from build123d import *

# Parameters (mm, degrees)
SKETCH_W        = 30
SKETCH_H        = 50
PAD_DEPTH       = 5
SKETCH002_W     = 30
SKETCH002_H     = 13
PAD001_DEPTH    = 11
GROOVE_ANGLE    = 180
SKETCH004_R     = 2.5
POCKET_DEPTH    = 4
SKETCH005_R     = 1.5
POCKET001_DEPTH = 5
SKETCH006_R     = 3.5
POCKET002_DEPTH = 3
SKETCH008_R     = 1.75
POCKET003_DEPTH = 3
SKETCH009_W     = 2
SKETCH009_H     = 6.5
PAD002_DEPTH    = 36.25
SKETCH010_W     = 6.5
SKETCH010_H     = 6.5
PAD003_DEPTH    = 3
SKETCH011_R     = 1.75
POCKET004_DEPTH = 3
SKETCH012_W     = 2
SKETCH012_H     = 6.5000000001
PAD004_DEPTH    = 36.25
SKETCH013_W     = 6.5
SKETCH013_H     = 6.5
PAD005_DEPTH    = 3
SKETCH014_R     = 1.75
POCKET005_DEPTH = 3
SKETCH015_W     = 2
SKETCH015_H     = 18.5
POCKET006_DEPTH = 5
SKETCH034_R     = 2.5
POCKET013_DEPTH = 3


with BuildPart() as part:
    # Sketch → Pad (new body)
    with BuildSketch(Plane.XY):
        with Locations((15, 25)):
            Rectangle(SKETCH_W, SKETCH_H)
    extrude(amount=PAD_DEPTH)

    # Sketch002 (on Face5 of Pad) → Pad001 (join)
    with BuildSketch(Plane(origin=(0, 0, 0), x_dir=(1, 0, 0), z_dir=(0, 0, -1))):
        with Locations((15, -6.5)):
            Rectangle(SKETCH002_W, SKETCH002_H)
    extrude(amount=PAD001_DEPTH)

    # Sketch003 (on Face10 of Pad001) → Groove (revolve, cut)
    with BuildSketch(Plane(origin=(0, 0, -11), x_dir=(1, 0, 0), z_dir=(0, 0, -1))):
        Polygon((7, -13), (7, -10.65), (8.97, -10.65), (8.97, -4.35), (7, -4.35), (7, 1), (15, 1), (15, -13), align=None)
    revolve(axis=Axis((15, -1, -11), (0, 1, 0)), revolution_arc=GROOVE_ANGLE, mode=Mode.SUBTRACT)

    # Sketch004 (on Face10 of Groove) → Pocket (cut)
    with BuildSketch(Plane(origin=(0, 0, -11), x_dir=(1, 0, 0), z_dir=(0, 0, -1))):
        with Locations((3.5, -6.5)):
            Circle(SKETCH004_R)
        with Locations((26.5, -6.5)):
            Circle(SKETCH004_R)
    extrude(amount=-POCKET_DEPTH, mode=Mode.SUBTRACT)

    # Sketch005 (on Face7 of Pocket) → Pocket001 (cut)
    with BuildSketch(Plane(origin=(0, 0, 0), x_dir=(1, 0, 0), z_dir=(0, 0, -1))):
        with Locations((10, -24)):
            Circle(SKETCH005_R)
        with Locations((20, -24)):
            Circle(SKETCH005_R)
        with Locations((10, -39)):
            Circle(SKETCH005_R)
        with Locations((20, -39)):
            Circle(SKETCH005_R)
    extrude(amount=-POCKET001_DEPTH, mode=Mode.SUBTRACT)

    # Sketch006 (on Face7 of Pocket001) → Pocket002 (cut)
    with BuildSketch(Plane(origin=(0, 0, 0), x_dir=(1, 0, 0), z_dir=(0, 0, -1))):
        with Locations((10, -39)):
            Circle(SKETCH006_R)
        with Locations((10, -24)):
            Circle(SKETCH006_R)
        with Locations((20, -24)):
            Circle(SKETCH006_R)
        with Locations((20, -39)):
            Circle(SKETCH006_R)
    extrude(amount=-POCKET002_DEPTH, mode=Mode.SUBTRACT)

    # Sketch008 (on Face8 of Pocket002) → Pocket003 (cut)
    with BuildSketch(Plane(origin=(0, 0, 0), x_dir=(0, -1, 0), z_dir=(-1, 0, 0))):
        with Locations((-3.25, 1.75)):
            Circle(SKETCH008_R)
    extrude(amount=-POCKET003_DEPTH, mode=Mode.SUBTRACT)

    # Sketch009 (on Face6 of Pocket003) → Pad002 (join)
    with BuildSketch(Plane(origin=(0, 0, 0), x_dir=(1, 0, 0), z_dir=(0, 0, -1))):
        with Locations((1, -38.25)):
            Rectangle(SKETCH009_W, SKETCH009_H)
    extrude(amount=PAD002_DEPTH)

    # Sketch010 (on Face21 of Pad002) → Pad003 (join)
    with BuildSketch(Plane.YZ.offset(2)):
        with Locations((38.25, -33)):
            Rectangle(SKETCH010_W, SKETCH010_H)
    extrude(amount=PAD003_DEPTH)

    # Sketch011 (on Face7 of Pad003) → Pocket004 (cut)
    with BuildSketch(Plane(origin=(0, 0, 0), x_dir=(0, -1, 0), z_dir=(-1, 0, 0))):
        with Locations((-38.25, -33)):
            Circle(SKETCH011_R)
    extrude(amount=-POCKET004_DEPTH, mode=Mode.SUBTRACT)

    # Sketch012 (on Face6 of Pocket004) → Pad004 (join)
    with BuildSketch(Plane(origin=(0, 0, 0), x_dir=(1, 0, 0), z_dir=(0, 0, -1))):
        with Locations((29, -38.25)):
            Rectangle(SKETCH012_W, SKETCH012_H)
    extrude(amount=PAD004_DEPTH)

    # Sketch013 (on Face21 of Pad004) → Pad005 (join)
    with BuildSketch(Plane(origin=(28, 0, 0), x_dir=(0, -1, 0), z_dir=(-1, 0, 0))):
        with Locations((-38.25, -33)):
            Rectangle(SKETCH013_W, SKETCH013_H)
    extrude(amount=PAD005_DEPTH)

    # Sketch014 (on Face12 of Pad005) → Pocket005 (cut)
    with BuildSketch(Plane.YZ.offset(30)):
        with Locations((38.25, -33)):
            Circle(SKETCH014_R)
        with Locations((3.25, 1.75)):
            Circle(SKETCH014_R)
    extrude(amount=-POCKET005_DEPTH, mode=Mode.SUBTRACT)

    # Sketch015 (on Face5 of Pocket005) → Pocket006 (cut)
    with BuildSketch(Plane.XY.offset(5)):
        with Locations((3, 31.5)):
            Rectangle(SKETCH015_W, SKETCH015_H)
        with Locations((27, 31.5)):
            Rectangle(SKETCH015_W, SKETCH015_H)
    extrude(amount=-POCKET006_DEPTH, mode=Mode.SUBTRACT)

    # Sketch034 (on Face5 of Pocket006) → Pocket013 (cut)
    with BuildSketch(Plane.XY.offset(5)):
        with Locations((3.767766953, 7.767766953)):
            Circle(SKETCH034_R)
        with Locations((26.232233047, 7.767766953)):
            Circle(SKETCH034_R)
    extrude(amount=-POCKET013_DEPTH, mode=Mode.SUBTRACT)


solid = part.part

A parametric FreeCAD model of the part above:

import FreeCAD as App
import Part
import Sketcher

V = App.Vector
Q = App.Units.Quantity


def add_polygon(sketch, points):
    """Adds a closed chain of lines whose ends are joined by coincident constraints."""
    first, n = sketch.GeometryCount, len(points)
    for a, b in zip(points, points[1:] + points[:1]):
        sketch.addGeometry(Part.LineSegment(App.Vector(*a, 0), App.Vector(*b, 0)), False)
    for i in range(n):
        sketch.addConstraint(Sketcher.Constraint("Coincident", first + i, 2, first + (i + 1) % n, 1))

doc = App.newDocument("Part")
body = doc.addObject("PartDesign::Body", "Body")

# Sketch on XY plane
sketch1 = doc.addObject("Sketcher::SketchObject", "Sketch")
body.addObject(sketch1)
sketch1.AttachmentSupport = (doc.XY_Plane, [""])
sketch1.MapMode = "FlatFace"
add_polygon(sketch1, [(0, 50), (0, 0), (30, 0), (30, 50)])  # lines 0-3
sketch1.addConstraint(Sketcher.Constraint("Vertical", 0))
sketch1.addConstraint(Sketcher.Constraint("Horizontal", 1))
sketch1.addConstraint(Sketcher.Constraint("Vertical", 2))
sketch1.addConstraint(Sketcher.Constraint("Horizontal", 3))
sketch1.addConstraint(Sketcher.Constraint("Coincident", 0, 2, -1, 1))
sketch1.addConstraint(Sketcher.Constraint("DistanceX", 1, 1, 1, 2, Q("30 mm")))
sketch1.addConstraint(Sketcher.Constraint("DistanceY", 0, 2, 0, 1, Q("50 mm")))
pad1 = doc.addObject("PartDesign::Pad", "Pad")
body.addObject(pad1)
pad1.Profile = sketch1
pad1.Length = 5

# Sketch on XY plane
sketch2 = doc.addObject("Sketcher::SketchObject", "Sketch001")
body.addObject(sketch2)
sketch2.AttachmentSupport = (doc.XY_Plane, [""])
sketch2.MapMode = "FlatFace"
add_polygon(sketch2, [(0, 0), (0, 13), (30, 13), (30, 0)])  # lines 0-3
sketch2.addConstraint(Sketcher.Constraint("Vertical", 0))
sketch2.addConstraint(Sketcher.Constraint("Horizontal", 1))
sketch2.addConstraint(Sketcher.Constraint("Vertical", 2))
sketch2.addConstraint(Sketcher.Constraint("Horizontal", 3))
sketch2.addConstraint(Sketcher.Constraint("Coincident", 3, 2, -1, 1))
sketch2.addConstraint(Sketcher.Constraint("DistanceX", 1, 1, 1, 2, Q("30 mm")))
sketch2.addConstraint(Sketcher.Constraint("DistanceY", 0, 1, 0, 2, Q("13 mm")))
pad2 = doc.addObject("PartDesign::Pad", "Pad001")
body.addObject(pad2)
pad2.Profile = sketch2
pad2.Length = 11
pad2.Reversed = True

# Sketch on XY plane
sketch3 = doc.addObject("Sketcher::SketchObject", "Sketch002")
body.addObject(sketch3)
sketch3.AttachmentSupport = (doc.XY_Plane, [""])
sketch3.MapMode = "FlatFace"
sketch3.AttachmentOffset = App.Placement(V(0, 0, -11), App.Rotation())
add_polygon(sketch3, [(7, 10.7), (7, 13), (15, 13), (15, -1), (7, -1), (7, 4.3), (9, 4.3), (9, 10.7)])  # lines 0-7
sketch3.addGeometry(Part.LineSegment(V(15, -1, 0), V(15, 13, 0)), True)  # axis
sketch3.addConstraint(Sketcher.Constraint("Vertical", 0))
sketch3.addConstraint(Sketcher.Constraint("Horizontal", 1))
sketch3.addConstraint(Sketcher.Constraint("Vertical", 2))
sketch3.addConstraint(Sketcher.Constraint("Horizontal", 3))
sketch3.addConstraint(Sketcher.Constraint("Vertical", 4))
sketch3.addConstraint(Sketcher.Constraint("Horizontal", 5))
sketch3.addConstraint(Sketcher.Constraint("Vertical", 6))
sketch3.addConstraint(Sketcher.Constraint("Horizontal", 7))
sketch3.addConstraint(Sketcher.Constraint("Vertical", 8))
sketch3.addConstraint(Sketcher.Constraint("Coincident", 8, 1, 2, 2))
sketch3.addConstraint(Sketcher.Constraint("Horizontal", 0, 2, 8, 2))
sketch3.addConstraint(Sketcher.Constraint("Vertical", 0, 2, 3, 2))
sketch3.addConstraint(Sketcher.Constraint("DistanceX", 1, 1, 1, 2, Q("8 mm")))
sketch3.addConstraint(Sketcher.Constraint("DistanceY", 2, 2, 2, 1, Q("14 mm")))
sketch3.addConstraint(Sketcher.Constraint("DistanceY", 6, 1, 6, 2, Q("6.3 mm")))
sketch3.addConstraint(Sketcher.Constraint("DistanceX", -1, 1, 0, 2, Q("7 mm")))
sketch3.addConstraint(Sketcher.Constraint("DistanceY", -1, 1, 0, 2, Q("13 mm")))
sketch3.addConstraint(Sketcher.Constraint("DistanceX", 5, 1, 5, 2, Q("1.97 mm")))
sketch3.addConstraint(Sketcher.Constraint("DistanceY", 0, 1, 0, 2, Q("2.35 mm")))
groove = doc.addObject("PartDesign::Groove", "Groove")
body.addObject(groove)
groove.Profile = sketch3
groove.ReferenceAxis = (sketch3, ["Axis0"])
groove.Angle = 180

# Sketch on XY plane
sketch4 = doc.addObject("Sketcher::SketchObject", "Sketch003")
body.addObject(sketch4)
sketch4.AttachmentSupport = (doc.XY_Plane, [""])
sketch4.MapMode = "FlatFace"
sketch4.AttachmentOffset = App.Placement(V(0, 0, -11), App.Rotation())
sketch4.addGeometry(Part.Circle(V(3.5, 6.5, 0), V(0, 0, 1), 2.5), False)
sketch4.addGeometry(Part.Circle(V(26.5, 6.5, 0), V(0, 0, 1), 2.5), False)
sketch4.addConstraint(Sketcher.Constraint("Equal", 0, 1))
sketch4.addConstraint(Sketcher.Constraint("Horizontal", 0, 3, 1, 3))
sketch4.addConstraint(Sketcher.Constraint("Diameter", 0, Q("5 mm")))
sketch4.addConstraint(Sketcher.Constraint("DistanceX", 0, 3, 1, 3, Q("23 mm")))
sketch4.addConstraint(Sketcher.Constraint("DistanceX", -1, 1, 0, 3, Q("3.5 mm")))
sketch4.addConstraint(Sketcher.Constraint("DistanceY", -1, 1, 0, 3, Q("6.5 mm")))
pocket1 = doc.addObject("PartDesign::Pocket", "Pocket")
body.addObject(pocket1)
pocket1.Profile = sketch4
pocket1.Length = 4
pocket1.Reversed = True

# Sketch on XY plane
sketch5 = doc.addObject("Sketcher::SketchObject", "Sketch004")
body.addObject(sketch5)
sketch5.AttachmentSupport = (doc.XY_Plane, [""])
sketch5.MapMode = "FlatFace"
sketch5.addGeometry(Part.Circle(V(10, 24, 0), V(0, 0, 1), 1.5), False)
sketch5.addGeometry(Part.Circle(V(20, 24, 0), V(0, 0, 1), 1.5), False)
sketch5.addGeometry(Part.Circle(V(10, 39, 0), V(0, 0, 1), 1.5), False)
sketch5.addGeometry(Part.Circle(V(20, 39, 0), V(0, 0, 1), 1.5), False)
sketch5.addConstraint(Sketcher.Constraint("Equal", 0, 1))
sketch5.addConstraint(Sketcher.Constraint("Equal", 1, 2))
sketch5.addConstraint(Sketcher.Constraint("Equal", 2, 3))
sketch5.addConstraint(Sketcher.Constraint("Horizontal", 0, 3, 1, 3))
sketch5.addConstraint(Sketcher.Constraint("Horizontal", 2, 3, 3, 3))
sketch5.addConstraint(Sketcher.Constraint("Vertical", 0, 3, 2, 3))
sketch5.addConstraint(Sketcher.Constraint("Vertical", 1, 3, 3, 3))
sketch5.addConstraint(Sketcher.Constraint("Diameter", 0, Q("3 mm")))
sketch5.addConstraint(Sketcher.Constraint("DistanceX", -1, 1, 0, 3, Q("10 mm")))
sketch5.addConstraint(Sketcher.Constraint("DistanceY", -1, 1, 0, 3, Q("24 mm")))
sketch5.addConstraint(Sketcher.Constraint("DistanceX", -1, 1, 1, 3, Q("20 mm")))
sketch5.addConstraint(Sketcher.Constraint("DistanceY", -1, 1, 2, 3, Q("39 mm")))
pocket2 = doc.addObject("PartDesign::Pocket", "Pocket001")
body.addObject(pocket2)
pocket2.Profile = sketch5
pocket2.Length = 5
pocket2.Reversed = True

# Sketch on XY plane
sketch6 = doc.addObject("Sketcher::SketchObject", "Sketch005")
body.addObject(sketch6)
sketch6.AttachmentSupport = (doc.XY_Plane, [""])
sketch6.MapMode = "FlatFace"
sketch6.addGeometry(Part.Circle(V(10, 39, 0), V(0, 0, 1), 3.5), False)
sketch6.addGeometry(Part.Circle(V(10, 24, 0), V(0, 0, 1), 3.5), False)
sketch6.addGeometry(Part.Circle(V(20, 24, 0), V(0, 0, 1), 3.5), False)
sketch6.addGeometry(Part.Circle(V(20, 39, 0), V(0, 0, 1), 3.5), False)
sketch6.addConstraint(Sketcher.Constraint("Equal", 0, 1))
sketch6.addConstraint(Sketcher.Constraint("Equal", 1, 2))
sketch6.addConstraint(Sketcher.Constraint("Equal", 2, 3))
sketch6.addConstraint(Sketcher.Constraint("Horizontal", 1, 3, 2, 3))
sketch6.addConstraint(Sketcher.Constraint("Horizontal", 0, 3, 3, 3))
sketch6.addConstraint(Sketcher.Constraint("Vertical", 0, 3, 1, 3))
sketch6.addConstraint(Sketcher.Constraint("Vertical", 2, 3, 3, 3))
sketch6.addConstraint(Sketcher.Constraint("Diameter", 0, Q("7 mm")))
sketch6.addConstraint(Sketcher.Constraint("DistanceX", -1, 1, 0, 3, Q("10 mm")))
sketch6.addConstraint(Sketcher.Constraint("DistanceY", -1, 1, 0, 3, Q("39 mm")))
sketch6.addConstraint(Sketcher.Constraint("DistanceY", -1, 1, 1, 3, Q("24 mm")))
sketch6.addConstraint(Sketcher.Constraint("DistanceX", -1, 1, 2, 3, Q("20 mm")))
pocket3 = doc.addObject("PartDesign::Pocket", "Pocket002")
body.addObject(pocket3)
pocket3.Profile = sketch6
pocket3.Length = 3
pocket3.Reversed = True

# Sketch on YZ plane
sketch7 = doc.addObject("Sketcher::SketchObject", "Sketch006")
body.addObject(sketch7)
sketch7.AttachmentSupport = (doc.YZ_Plane, [""])
sketch7.MapMode = "FlatFace"
sketch7.addGeometry(Part.Circle(V(3.2, 1.8, 0), V(0, 0, 1), 1.8), False)
sketch7.addConstraint(Sketcher.Constraint("Diameter", 0, Q("3.5 mm")))
sketch7.addConstraint(Sketcher.Constraint("DistanceX", -1, 1, 0, 3, Q("3.25 mm")))
sketch7.addConstraint(Sketcher.Constraint("DistanceY", -1, 1, 0, 3, Q("1.75 mm")))
pocket4 = doc.addObject("PartDesign::Pocket", "Pocket003")
body.addObject(pocket4)
pocket4.Profile = sketch7
pocket4.Length = 3
pocket4.Reversed = True

# Sketch on XY plane
sketch8 = doc.addObject("Sketcher::SketchObject", "Sketch007")
body.addObject(sketch8)
sketch8.AttachmentSupport = (doc.XY_Plane, [""])
sketch8.MapMode = "FlatFace"
add_polygon(sketch8, [(0, 35), (0, 41.5), (2, 41.5), (2, 35)])  # lines 0-3
sketch8.addConstraint(Sketcher.Constraint("Vertical", 0))
sketch8.addConstraint(Sketcher.Constraint("Horizontal", 1))
sketch8.addConstraint(Sketcher.Constraint("Vertical", 2))
sketch8.addConstraint(Sketcher.Constraint("Horizontal", 3))
sketch8.addConstraint(Sketcher.Constraint("PointOnObject", 0, 2, -2))
sketch8.addConstraint(Sketcher.Constraint("DistanceX", 1, 1, 1, 2, Q("2 mm")))
sketch8.addConstraint(Sketcher.Constraint("DistanceY", 0, 1, 0, 2, Q("6.5 mm")))
sketch8.addConstraint(Sketcher.Constraint("DistanceY", -1, 1, 2, 2, Q("35 mm")))
pad3 = doc.addObject("PartDesign::Pad", "Pad002")
body.addObject(pad3)
pad3.Profile = sketch8
pad3.Length = 36.25
pad3.Reversed = True

# Sketch on YZ plane
sketch9 = doc.addObject("Sketcher::SketchObject", "Sketch008")
body.addObject(sketch9)
sketch9.AttachmentSupport = (doc.YZ_Plane, [""])
sketch9.MapMode = "FlatFace"
sketch9.AttachmentOffset = App.Placement(V(0, 0, 2), App.Rotation())
add_polygon(sketch9, [(35, -30), (35, -36), (42, -36), (42, -30)])  # lines 0-3
sketch9.addConstraint(Sketcher.Constraint("Vertical", 0))
sketch9.addConstraint(Sketcher.Constraint("Horizontal", 1))
sketch9.addConstraint(Sketcher.Constraint("Vertical", 2))
sketch9.addConstraint(Sketcher.Constraint("Horizontal", 3))
sketch9.addConstraint(Sketcher.Constraint("Equal", 3, 0))
sketch9.addConstraint(Sketcher.Constraint("DistanceX", 1, 1, 1, 2, Q("6.5 mm")))
sketch9.addConstraint(Sketcher.Constraint("DistanceX", -1, 1, 0, 2, Q("35 mm")))
sketch9.addConstraint(Sketcher.Constraint("DistanceY", 0, 2, -1, 1, Q("36.25 mm")))
pad4 = doc.addObject("PartDesign::Pad", "Pad003")
body.addObject(pad4)
pad4.Profile = sketch9
pad4.Length = 3

# Sketch on YZ plane
sketch10 = doc.addObject("Sketcher::SketchObject", "Sketch009")
body.addObject(sketch10)
sketch10.AttachmentSupport = (doc.YZ_Plane, [""])
sketch10.MapMode = "FlatFace"
sketch10.addGeometry(Part.Circle(V(38.2, -33, 0), V(0, 0, 1), 1.8), False)
sketch10.addConstraint(Sketcher.Constraint("Diameter", 0, Q("3.5 mm")))
sketch10.addConstraint(Sketcher.Constraint("DistanceY", 0, 3, -1, 1, Q("33 mm")))
sketch10.addConstraint(Sketcher.Constraint("DistanceX", -1, 1, 0, 3, Q("38.25 mm")))
pocket5 = doc.addObject("PartDesign::Pocket", "Pocket004")
body.addObject(pocket5)
pocket5.Profile = sketch10
pocket5.Length = 3
pocket5.Reversed = True

# Sketch on XY plane
sketch11 = doc.addObject("Sketcher::SketchObject", "Sketch010")
body.addObject(sketch11)
sketch11.AttachmentSupport = (doc.XY_Plane, [""])
sketch11.MapMode = "FlatFace"
add_polygon(sketch11, [(28, 35), (28, 41.5), (30, 41.5), (30, 35)])  # lines 0-3
sketch11.addConstraint(Sketcher.Constraint("Vertical", 0))
sketch11.addConstraint(Sketcher.Constraint("Horizontal", 1))
sketch11.addConstraint(Sketcher.Constraint("Vertical", 2))
sketch11.addConstraint(Sketcher.Constraint("Horizontal", 3))
sketch11.addConstraint(Sketcher.Constraint("DistanceX", 1, 1, 1, 2, Q("2 mm")))
sketch11.addConstraint(Sketcher.Constraint("DistanceY", 0, 1, 0, 2, Q("6.5 mm")))
sketch11.addConstraint(Sketcher.Constraint("DistanceX", -1, 1, 0, 2, Q("28 mm")))
sketch11.addConstraint(Sketcher.Constraint("DistanceY", -1, 1, 2, 2, Q("35 mm")))
pad5 = doc.addObject("PartDesign::Pad", "Pad004")
body.addObject(pad5)
pad5.Profile = sketch11
pad5.Length = 36.25
pad5.Reversed = True

# Sketch on YZ plane
sketch12 = doc.addObject("Sketcher::SketchObject", "Sketch011")
body.addObject(sketch12)
sketch12.AttachmentSupport = (doc.YZ_Plane, [""])
sketch12.MapMode = "FlatFace"
sketch12.AttachmentOffset = App.Placement(V(0, 0, 28), App.Rotation())
add_polygon(sketch12, [(42, -30), (42, -36), (35, -36), (35, -30)])  # lines 0-3
sketch12.addConstraint(Sketcher.Constraint("Vertical", 0))
sketch12.addConstraint(Sketcher.Constraint("Horizontal", 1))
sketch12.addConstraint(Sketcher.Constraint("Vertical", 2))
sketch12.addConstraint(Sketcher.Constraint("Horizontal", 3))
sketch12.addConstraint(Sketcher.Constraint("Equal", 3, 0))
sketch12.addConstraint(Sketcher.Constraint("DistanceX", 1, 2, 1, 1, Q("6.5 mm")))
sketch12.addConstraint(Sketcher.Constraint("DistanceX", -1, 1, 1, 2, Q("35 mm")))
sketch12.addConstraint(Sketcher.Constraint("DistanceY", 0, 2, -1, 1, Q("36.25 mm")))
pad6 = doc.addObject("PartDesign::Pad", "Pad005")
body.addObject(pad6)
pad6.Profile = sketch12
pad6.Length = 3
pad6.Reversed = True

# Sketch on YZ plane
sketch13 = doc.addObject("Sketcher::SketchObject", "Sketch012")
body.addObject(sketch13)
sketch13.AttachmentSupport = (doc.YZ_Plane, [""])
sketch13.MapMode = "FlatFace"
sketch13.AttachmentOffset = App.Placement(V(0, 0, 30), App.Rotation())
sketch13.addGeometry(Part.Circle(V(38.2, -33, 0), V(0, 0, 1), 1.8), False)
sketch13.addGeometry(Part.Circle(V(3.2, 1.8, 0), V(0, 0, 1), 1.8), False)
sketch13.addConstraint(Sketcher.Constraint("Equal", 0, 1))
sketch13.addConstraint(Sketcher.Constraint("Diameter", 0, Q("3.5 mm")))
sketch13.addConstraint(Sketcher.Constraint("DistanceY", 0, 3, -1, 1, Q("33 mm")))
sketch13.addConstraint(Sketcher.Constraint("DistanceX", 1, 3, 0, 3, Q("35 mm")))
sketch13.addConstraint(Sketcher.Constraint("DistanceX", -1, 1, 0, 3, Q("38.25 mm")))
sketch13.addConstraint(Sketcher.Constraint("DistanceY", -1, 1, 1, 3, Q("1.75 mm")))
pocket6 = doc.addObject("PartDesign::Pocket", "Pocket005")
body.addObject(pocket6)
pocket6.Profile = sketch13
pocket6.Length = 3

# Sketch on XY plane
sketch14 = doc.addObject("Sketcher::SketchObject", "Sketch013")
body.addObject(sketch14)
sketch14.AttachmentSupport = (doc.XY_Plane, [""])
sketch14.MapMode = "FlatFace"
sketch14.AttachmentOffset = App.Placement(V(0, 0, 5), App.Rotation())
add_polygon(sketch14, [(2, 40.8), (2, 22.2), (4, 22.2), (4, 40.8)])  # lines 0-3
add_polygon(sketch14, [(26, 40.8), (26, 22.2), (28, 22.2), (28, 40.8)])  # lines 4-7
sketch14.addConstraint(Sketcher.Constraint("Vertical", 0))
sketch14.addConstraint(Sketcher.Constraint("Horizontal", 1))
sketch14.addConstraint(Sketcher.Constraint("Vertical", 2))
sketch14.addConstraint(Sketcher.Constraint("Horizontal", 3))
sketch14.addConstraint(Sketcher.Constraint("Vertical", 4))
sketch14.addConstraint(Sketcher.Constraint("Horizontal", 5))
sketch14.addConstraint(Sketcher.Constraint("Vertical", 6))
sketch14.addConstraint(Sketcher.Constraint("Horizontal", 7))
sketch14.addConstraint(Sketcher.Constraint("Horizontal", 1, 2, 4, 2))
sketch14.addConstraint(Sketcher.Constraint("Horizontal", 3, 2, 6, 2))
sketch14.addConstraint(Sketcher.Constraint("Equal", 3, 5))
sketch14.addConstraint(Sketcher.Constraint("DistanceX", 1, 1, 1, 2, Q("2 mm")))
sketch14.addConstraint(Sketcher.Constraint("DistanceY", 0, 2, 0, 1, Q("18.5 mm")))
sketch14.addConstraint(Sketcher.Constraint("DistanceX", -1, 1, 0, 2, Q("2 mm")))
sketch14.addConstraint(Sketcher.Constraint("DistanceX", -1, 1, 4, 2, Q("26 mm")))
sketch14.addConstraint(Sketcher.Constraint("DistanceY", -1, 1, 0, 2, Q("22.25 mm")))
pocket7 = doc.addObject("PartDesign::Pocket", "Pocket006")
body.addObject(pocket7)
pocket7.Profile = sketch14
pocket7.Length = 5

# Sketch on XY plane
sketch15 = doc.addObject("Sketcher::SketchObject", "Sketch014")
body.addObject(sketch15)
sketch15.AttachmentSupport = (doc.XY_Plane, [""])
sketch15.MapMode = "FlatFace"
sketch15.AttachmentOffset = App.Placement(V(0, 0, 5), App.Rotation())
sketch15.addGeometry(Part.Circle(V(3.8, 7.8, 0), V(0, 0, 1), 2.5), False)
sketch15.addGeometry(Part.Circle(V(26.2, 7.8, 0), V(0, 0, 1), 2.5), False)
sketch15.addConstraint(Sketcher.Constraint("Equal", 0, 1))
sketch15.addConstraint(Sketcher.Constraint("Horizontal", 0, 3, 1, 3))
sketch15.addConstraint(Sketcher.Constraint("Diameter", 0, Q("5 mm")))
sketch15.addConstraint(Sketcher.Constraint("DistanceX", -1, 1, 0, 3, Q("3.767767 mm")))
sketch15.addConstraint(Sketcher.Constraint("DistanceY", -1, 1, 0, 3, Q("7.767767 mm")))
sketch15.addConstraint(Sketcher.Constraint("DistanceX", -1, 1, 1, 3, Q("26.232233 mm")))
pocket8 = doc.addObject("PartDesign::Pocket", "Pocket007")
body.addObject(pocket8)
pocket8.Profile = sketch15
pocket8.Length = 3

doc.recompute()
